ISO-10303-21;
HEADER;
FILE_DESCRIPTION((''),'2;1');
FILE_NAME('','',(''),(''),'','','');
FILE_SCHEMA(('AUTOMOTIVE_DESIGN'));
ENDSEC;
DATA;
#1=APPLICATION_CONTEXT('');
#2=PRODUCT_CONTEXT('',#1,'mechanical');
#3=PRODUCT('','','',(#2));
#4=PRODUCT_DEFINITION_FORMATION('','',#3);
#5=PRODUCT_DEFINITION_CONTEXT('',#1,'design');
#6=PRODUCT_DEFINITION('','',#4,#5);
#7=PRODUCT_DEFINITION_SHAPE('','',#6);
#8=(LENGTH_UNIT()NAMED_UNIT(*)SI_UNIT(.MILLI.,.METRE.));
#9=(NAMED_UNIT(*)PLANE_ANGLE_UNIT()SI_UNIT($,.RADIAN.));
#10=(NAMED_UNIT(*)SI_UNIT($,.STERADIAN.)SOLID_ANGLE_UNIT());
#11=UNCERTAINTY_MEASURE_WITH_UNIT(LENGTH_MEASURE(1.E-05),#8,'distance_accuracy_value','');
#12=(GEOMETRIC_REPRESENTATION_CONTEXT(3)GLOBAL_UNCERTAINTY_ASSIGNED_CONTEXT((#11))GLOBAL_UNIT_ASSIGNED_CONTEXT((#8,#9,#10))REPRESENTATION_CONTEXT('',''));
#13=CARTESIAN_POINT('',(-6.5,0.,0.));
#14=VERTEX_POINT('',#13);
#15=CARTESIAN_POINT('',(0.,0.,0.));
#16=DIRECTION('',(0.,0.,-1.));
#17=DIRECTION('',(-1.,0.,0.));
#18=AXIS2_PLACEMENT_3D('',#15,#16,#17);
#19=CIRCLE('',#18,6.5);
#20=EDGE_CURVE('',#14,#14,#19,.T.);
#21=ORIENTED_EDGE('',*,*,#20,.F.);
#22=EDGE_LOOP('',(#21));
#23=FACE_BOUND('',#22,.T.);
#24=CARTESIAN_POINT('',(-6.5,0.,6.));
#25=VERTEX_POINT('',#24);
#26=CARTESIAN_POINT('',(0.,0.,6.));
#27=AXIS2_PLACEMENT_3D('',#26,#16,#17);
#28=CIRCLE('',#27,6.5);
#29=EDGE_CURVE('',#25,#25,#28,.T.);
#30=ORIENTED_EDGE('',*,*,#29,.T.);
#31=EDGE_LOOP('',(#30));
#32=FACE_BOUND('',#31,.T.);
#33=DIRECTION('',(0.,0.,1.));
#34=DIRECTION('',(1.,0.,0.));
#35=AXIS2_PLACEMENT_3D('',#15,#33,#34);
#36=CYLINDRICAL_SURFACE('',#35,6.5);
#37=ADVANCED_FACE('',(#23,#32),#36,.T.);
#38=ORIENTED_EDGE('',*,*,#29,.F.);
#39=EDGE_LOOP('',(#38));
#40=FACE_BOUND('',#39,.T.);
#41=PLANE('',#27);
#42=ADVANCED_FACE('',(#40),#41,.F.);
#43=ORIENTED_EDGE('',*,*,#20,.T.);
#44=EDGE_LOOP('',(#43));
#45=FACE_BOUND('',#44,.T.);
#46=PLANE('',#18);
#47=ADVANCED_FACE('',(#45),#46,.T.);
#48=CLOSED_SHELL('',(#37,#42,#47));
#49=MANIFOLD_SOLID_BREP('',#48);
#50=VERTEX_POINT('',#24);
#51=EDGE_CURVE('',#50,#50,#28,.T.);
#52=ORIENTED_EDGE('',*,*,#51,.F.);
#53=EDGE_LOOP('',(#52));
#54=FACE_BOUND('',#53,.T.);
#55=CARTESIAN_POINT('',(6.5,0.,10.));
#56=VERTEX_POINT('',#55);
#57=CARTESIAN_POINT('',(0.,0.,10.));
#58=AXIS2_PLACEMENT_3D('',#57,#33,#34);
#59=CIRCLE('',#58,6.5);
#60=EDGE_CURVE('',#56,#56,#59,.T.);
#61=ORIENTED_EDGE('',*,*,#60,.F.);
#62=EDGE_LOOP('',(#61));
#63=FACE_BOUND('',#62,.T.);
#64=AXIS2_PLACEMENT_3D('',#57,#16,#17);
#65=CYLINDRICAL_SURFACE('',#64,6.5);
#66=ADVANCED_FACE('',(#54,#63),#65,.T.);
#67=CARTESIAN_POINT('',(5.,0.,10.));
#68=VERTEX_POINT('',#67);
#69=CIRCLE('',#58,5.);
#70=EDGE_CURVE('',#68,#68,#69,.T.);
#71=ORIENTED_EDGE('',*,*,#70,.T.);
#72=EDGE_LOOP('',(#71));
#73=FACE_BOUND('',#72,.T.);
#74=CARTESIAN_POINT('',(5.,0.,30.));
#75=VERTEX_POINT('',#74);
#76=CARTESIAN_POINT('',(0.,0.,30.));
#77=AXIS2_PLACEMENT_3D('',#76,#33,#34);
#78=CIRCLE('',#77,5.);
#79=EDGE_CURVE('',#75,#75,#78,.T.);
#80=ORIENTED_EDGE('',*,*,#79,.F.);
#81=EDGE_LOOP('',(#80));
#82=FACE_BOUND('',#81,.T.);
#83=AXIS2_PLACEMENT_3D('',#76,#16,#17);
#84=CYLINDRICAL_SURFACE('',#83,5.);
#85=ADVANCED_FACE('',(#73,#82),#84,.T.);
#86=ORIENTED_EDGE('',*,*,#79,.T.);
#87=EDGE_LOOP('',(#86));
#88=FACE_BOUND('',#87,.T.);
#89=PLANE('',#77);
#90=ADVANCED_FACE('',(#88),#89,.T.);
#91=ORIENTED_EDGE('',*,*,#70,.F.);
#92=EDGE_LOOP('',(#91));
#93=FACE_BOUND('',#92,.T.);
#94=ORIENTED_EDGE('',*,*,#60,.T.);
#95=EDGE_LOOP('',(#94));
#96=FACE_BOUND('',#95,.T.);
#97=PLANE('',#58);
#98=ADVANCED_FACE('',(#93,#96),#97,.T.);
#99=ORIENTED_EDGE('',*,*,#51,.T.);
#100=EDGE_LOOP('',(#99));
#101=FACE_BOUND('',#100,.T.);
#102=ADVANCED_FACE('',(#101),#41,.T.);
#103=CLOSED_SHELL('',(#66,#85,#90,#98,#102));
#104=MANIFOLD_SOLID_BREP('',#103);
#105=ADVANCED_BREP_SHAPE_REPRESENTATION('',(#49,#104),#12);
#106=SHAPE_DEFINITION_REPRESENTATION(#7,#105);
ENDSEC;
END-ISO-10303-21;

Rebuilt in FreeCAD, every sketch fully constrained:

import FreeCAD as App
import Part
import Sketcher
from FreeCAD import Vector

doc = App.newDocument("Part")
body = doc.addObject("PartDesign::Body", "Body")

sketch1 = body.newObject("Sketcher::SketchObject", "Sketch")
sketch1.AttachmentSupport = (doc.getObject("XY_Plane"), [""])
sketch1.MapMode = "FlatFace"
sketch1.addGeometry(Part.Circle(Vector(0, 0, 0), Vector(0, 0, 1), 6.5), False)
sketch1.addConstraint([
    Sketcher.Constraint("Coincident", 0, 3, -1, 1),
    Sketcher.Constraint("Diameter", 0, 13.0),
])
pad1 = body.newObject("PartDesign::Pad", "Pad")
pad1.Profile = sketch1
pad1.Length = 10

sketch2 = body.newObject("Sketcher::SketchObject", "Sketch001")
sketch2.AttachmentSupport = (doc.getObject("XY_Plane"), [""])
sketch2.MapMode = "FlatFace"
sketch2.AttachmentOffset = App.Placement(Vector(0, 0, 10), App.Rotation())
sketch2.addGeometry(Part.Circle(Vector(0, 0, 0), Vector(0, 0, 1), 5), False)
sketch2.addConstraint([
    Sketcher.Constraint("Coincident", 0, 3, -1, 1),
    Sketcher.Constraint("Diameter", 0, 10.0),
])
pad2 = body.newObject("PartDesign::Pad", "Pad001")
pad2.Profile = sketch2
pad2.Length = 20

sketch3 = body.newObject("Sketcher::SketchObject", "Sketch002")
sketch3.AttachmentSupport = (doc.getObject("XY_Plane"), [""])
sketch3.MapMode = "FlatFace"
sketch3.addGeometry(Part.Circle(Vector(0, 0, 0), Vector(0, 0, 1), 6.5), False)
sketch3.addConstraint([
    Sketcher.Constraint("Coincident", 0, 3, -1, 1),
    Sketcher.Constraint("Diameter", 0, 13.0),
])
pocket1 = body.newObject("PartDesign::Pocket", "Pocket")
pocket1.Profile = sketch3
pocket1.Length = 6
pocket1.Reversed = True
body2 = doc.addObject("PartDesign::Body", "Body001")

sketch4 = body2.newObject("Sketcher::SketchObject", "Sketch003")
sketch4.AttachmentSupport = (doc.getObject("XY_Plane001"), [""])
sketch4.MapMode = "FlatFace"
sketch4.AttachmentOffset = App.Placement(Vector(0, 0, 6), App.Rotation())
sketch4.addGeometry(Part.Circle(Vector(0, 0, 0), Vector(0, 0, 1), 6.5), False)
sketch4.addConstraint([
    Sketcher.Constraint("Coincident", 0, 3, -1, 1),
    Sketcher.Constraint("Diameter", 0, 13.0),
])
pad3 = body2.newObject("PartDesign::Pad", "Pad002")
pad3.Profile = sketch4
pad3.Length = 6
pad3.Reversed = True

doc.recompute()
